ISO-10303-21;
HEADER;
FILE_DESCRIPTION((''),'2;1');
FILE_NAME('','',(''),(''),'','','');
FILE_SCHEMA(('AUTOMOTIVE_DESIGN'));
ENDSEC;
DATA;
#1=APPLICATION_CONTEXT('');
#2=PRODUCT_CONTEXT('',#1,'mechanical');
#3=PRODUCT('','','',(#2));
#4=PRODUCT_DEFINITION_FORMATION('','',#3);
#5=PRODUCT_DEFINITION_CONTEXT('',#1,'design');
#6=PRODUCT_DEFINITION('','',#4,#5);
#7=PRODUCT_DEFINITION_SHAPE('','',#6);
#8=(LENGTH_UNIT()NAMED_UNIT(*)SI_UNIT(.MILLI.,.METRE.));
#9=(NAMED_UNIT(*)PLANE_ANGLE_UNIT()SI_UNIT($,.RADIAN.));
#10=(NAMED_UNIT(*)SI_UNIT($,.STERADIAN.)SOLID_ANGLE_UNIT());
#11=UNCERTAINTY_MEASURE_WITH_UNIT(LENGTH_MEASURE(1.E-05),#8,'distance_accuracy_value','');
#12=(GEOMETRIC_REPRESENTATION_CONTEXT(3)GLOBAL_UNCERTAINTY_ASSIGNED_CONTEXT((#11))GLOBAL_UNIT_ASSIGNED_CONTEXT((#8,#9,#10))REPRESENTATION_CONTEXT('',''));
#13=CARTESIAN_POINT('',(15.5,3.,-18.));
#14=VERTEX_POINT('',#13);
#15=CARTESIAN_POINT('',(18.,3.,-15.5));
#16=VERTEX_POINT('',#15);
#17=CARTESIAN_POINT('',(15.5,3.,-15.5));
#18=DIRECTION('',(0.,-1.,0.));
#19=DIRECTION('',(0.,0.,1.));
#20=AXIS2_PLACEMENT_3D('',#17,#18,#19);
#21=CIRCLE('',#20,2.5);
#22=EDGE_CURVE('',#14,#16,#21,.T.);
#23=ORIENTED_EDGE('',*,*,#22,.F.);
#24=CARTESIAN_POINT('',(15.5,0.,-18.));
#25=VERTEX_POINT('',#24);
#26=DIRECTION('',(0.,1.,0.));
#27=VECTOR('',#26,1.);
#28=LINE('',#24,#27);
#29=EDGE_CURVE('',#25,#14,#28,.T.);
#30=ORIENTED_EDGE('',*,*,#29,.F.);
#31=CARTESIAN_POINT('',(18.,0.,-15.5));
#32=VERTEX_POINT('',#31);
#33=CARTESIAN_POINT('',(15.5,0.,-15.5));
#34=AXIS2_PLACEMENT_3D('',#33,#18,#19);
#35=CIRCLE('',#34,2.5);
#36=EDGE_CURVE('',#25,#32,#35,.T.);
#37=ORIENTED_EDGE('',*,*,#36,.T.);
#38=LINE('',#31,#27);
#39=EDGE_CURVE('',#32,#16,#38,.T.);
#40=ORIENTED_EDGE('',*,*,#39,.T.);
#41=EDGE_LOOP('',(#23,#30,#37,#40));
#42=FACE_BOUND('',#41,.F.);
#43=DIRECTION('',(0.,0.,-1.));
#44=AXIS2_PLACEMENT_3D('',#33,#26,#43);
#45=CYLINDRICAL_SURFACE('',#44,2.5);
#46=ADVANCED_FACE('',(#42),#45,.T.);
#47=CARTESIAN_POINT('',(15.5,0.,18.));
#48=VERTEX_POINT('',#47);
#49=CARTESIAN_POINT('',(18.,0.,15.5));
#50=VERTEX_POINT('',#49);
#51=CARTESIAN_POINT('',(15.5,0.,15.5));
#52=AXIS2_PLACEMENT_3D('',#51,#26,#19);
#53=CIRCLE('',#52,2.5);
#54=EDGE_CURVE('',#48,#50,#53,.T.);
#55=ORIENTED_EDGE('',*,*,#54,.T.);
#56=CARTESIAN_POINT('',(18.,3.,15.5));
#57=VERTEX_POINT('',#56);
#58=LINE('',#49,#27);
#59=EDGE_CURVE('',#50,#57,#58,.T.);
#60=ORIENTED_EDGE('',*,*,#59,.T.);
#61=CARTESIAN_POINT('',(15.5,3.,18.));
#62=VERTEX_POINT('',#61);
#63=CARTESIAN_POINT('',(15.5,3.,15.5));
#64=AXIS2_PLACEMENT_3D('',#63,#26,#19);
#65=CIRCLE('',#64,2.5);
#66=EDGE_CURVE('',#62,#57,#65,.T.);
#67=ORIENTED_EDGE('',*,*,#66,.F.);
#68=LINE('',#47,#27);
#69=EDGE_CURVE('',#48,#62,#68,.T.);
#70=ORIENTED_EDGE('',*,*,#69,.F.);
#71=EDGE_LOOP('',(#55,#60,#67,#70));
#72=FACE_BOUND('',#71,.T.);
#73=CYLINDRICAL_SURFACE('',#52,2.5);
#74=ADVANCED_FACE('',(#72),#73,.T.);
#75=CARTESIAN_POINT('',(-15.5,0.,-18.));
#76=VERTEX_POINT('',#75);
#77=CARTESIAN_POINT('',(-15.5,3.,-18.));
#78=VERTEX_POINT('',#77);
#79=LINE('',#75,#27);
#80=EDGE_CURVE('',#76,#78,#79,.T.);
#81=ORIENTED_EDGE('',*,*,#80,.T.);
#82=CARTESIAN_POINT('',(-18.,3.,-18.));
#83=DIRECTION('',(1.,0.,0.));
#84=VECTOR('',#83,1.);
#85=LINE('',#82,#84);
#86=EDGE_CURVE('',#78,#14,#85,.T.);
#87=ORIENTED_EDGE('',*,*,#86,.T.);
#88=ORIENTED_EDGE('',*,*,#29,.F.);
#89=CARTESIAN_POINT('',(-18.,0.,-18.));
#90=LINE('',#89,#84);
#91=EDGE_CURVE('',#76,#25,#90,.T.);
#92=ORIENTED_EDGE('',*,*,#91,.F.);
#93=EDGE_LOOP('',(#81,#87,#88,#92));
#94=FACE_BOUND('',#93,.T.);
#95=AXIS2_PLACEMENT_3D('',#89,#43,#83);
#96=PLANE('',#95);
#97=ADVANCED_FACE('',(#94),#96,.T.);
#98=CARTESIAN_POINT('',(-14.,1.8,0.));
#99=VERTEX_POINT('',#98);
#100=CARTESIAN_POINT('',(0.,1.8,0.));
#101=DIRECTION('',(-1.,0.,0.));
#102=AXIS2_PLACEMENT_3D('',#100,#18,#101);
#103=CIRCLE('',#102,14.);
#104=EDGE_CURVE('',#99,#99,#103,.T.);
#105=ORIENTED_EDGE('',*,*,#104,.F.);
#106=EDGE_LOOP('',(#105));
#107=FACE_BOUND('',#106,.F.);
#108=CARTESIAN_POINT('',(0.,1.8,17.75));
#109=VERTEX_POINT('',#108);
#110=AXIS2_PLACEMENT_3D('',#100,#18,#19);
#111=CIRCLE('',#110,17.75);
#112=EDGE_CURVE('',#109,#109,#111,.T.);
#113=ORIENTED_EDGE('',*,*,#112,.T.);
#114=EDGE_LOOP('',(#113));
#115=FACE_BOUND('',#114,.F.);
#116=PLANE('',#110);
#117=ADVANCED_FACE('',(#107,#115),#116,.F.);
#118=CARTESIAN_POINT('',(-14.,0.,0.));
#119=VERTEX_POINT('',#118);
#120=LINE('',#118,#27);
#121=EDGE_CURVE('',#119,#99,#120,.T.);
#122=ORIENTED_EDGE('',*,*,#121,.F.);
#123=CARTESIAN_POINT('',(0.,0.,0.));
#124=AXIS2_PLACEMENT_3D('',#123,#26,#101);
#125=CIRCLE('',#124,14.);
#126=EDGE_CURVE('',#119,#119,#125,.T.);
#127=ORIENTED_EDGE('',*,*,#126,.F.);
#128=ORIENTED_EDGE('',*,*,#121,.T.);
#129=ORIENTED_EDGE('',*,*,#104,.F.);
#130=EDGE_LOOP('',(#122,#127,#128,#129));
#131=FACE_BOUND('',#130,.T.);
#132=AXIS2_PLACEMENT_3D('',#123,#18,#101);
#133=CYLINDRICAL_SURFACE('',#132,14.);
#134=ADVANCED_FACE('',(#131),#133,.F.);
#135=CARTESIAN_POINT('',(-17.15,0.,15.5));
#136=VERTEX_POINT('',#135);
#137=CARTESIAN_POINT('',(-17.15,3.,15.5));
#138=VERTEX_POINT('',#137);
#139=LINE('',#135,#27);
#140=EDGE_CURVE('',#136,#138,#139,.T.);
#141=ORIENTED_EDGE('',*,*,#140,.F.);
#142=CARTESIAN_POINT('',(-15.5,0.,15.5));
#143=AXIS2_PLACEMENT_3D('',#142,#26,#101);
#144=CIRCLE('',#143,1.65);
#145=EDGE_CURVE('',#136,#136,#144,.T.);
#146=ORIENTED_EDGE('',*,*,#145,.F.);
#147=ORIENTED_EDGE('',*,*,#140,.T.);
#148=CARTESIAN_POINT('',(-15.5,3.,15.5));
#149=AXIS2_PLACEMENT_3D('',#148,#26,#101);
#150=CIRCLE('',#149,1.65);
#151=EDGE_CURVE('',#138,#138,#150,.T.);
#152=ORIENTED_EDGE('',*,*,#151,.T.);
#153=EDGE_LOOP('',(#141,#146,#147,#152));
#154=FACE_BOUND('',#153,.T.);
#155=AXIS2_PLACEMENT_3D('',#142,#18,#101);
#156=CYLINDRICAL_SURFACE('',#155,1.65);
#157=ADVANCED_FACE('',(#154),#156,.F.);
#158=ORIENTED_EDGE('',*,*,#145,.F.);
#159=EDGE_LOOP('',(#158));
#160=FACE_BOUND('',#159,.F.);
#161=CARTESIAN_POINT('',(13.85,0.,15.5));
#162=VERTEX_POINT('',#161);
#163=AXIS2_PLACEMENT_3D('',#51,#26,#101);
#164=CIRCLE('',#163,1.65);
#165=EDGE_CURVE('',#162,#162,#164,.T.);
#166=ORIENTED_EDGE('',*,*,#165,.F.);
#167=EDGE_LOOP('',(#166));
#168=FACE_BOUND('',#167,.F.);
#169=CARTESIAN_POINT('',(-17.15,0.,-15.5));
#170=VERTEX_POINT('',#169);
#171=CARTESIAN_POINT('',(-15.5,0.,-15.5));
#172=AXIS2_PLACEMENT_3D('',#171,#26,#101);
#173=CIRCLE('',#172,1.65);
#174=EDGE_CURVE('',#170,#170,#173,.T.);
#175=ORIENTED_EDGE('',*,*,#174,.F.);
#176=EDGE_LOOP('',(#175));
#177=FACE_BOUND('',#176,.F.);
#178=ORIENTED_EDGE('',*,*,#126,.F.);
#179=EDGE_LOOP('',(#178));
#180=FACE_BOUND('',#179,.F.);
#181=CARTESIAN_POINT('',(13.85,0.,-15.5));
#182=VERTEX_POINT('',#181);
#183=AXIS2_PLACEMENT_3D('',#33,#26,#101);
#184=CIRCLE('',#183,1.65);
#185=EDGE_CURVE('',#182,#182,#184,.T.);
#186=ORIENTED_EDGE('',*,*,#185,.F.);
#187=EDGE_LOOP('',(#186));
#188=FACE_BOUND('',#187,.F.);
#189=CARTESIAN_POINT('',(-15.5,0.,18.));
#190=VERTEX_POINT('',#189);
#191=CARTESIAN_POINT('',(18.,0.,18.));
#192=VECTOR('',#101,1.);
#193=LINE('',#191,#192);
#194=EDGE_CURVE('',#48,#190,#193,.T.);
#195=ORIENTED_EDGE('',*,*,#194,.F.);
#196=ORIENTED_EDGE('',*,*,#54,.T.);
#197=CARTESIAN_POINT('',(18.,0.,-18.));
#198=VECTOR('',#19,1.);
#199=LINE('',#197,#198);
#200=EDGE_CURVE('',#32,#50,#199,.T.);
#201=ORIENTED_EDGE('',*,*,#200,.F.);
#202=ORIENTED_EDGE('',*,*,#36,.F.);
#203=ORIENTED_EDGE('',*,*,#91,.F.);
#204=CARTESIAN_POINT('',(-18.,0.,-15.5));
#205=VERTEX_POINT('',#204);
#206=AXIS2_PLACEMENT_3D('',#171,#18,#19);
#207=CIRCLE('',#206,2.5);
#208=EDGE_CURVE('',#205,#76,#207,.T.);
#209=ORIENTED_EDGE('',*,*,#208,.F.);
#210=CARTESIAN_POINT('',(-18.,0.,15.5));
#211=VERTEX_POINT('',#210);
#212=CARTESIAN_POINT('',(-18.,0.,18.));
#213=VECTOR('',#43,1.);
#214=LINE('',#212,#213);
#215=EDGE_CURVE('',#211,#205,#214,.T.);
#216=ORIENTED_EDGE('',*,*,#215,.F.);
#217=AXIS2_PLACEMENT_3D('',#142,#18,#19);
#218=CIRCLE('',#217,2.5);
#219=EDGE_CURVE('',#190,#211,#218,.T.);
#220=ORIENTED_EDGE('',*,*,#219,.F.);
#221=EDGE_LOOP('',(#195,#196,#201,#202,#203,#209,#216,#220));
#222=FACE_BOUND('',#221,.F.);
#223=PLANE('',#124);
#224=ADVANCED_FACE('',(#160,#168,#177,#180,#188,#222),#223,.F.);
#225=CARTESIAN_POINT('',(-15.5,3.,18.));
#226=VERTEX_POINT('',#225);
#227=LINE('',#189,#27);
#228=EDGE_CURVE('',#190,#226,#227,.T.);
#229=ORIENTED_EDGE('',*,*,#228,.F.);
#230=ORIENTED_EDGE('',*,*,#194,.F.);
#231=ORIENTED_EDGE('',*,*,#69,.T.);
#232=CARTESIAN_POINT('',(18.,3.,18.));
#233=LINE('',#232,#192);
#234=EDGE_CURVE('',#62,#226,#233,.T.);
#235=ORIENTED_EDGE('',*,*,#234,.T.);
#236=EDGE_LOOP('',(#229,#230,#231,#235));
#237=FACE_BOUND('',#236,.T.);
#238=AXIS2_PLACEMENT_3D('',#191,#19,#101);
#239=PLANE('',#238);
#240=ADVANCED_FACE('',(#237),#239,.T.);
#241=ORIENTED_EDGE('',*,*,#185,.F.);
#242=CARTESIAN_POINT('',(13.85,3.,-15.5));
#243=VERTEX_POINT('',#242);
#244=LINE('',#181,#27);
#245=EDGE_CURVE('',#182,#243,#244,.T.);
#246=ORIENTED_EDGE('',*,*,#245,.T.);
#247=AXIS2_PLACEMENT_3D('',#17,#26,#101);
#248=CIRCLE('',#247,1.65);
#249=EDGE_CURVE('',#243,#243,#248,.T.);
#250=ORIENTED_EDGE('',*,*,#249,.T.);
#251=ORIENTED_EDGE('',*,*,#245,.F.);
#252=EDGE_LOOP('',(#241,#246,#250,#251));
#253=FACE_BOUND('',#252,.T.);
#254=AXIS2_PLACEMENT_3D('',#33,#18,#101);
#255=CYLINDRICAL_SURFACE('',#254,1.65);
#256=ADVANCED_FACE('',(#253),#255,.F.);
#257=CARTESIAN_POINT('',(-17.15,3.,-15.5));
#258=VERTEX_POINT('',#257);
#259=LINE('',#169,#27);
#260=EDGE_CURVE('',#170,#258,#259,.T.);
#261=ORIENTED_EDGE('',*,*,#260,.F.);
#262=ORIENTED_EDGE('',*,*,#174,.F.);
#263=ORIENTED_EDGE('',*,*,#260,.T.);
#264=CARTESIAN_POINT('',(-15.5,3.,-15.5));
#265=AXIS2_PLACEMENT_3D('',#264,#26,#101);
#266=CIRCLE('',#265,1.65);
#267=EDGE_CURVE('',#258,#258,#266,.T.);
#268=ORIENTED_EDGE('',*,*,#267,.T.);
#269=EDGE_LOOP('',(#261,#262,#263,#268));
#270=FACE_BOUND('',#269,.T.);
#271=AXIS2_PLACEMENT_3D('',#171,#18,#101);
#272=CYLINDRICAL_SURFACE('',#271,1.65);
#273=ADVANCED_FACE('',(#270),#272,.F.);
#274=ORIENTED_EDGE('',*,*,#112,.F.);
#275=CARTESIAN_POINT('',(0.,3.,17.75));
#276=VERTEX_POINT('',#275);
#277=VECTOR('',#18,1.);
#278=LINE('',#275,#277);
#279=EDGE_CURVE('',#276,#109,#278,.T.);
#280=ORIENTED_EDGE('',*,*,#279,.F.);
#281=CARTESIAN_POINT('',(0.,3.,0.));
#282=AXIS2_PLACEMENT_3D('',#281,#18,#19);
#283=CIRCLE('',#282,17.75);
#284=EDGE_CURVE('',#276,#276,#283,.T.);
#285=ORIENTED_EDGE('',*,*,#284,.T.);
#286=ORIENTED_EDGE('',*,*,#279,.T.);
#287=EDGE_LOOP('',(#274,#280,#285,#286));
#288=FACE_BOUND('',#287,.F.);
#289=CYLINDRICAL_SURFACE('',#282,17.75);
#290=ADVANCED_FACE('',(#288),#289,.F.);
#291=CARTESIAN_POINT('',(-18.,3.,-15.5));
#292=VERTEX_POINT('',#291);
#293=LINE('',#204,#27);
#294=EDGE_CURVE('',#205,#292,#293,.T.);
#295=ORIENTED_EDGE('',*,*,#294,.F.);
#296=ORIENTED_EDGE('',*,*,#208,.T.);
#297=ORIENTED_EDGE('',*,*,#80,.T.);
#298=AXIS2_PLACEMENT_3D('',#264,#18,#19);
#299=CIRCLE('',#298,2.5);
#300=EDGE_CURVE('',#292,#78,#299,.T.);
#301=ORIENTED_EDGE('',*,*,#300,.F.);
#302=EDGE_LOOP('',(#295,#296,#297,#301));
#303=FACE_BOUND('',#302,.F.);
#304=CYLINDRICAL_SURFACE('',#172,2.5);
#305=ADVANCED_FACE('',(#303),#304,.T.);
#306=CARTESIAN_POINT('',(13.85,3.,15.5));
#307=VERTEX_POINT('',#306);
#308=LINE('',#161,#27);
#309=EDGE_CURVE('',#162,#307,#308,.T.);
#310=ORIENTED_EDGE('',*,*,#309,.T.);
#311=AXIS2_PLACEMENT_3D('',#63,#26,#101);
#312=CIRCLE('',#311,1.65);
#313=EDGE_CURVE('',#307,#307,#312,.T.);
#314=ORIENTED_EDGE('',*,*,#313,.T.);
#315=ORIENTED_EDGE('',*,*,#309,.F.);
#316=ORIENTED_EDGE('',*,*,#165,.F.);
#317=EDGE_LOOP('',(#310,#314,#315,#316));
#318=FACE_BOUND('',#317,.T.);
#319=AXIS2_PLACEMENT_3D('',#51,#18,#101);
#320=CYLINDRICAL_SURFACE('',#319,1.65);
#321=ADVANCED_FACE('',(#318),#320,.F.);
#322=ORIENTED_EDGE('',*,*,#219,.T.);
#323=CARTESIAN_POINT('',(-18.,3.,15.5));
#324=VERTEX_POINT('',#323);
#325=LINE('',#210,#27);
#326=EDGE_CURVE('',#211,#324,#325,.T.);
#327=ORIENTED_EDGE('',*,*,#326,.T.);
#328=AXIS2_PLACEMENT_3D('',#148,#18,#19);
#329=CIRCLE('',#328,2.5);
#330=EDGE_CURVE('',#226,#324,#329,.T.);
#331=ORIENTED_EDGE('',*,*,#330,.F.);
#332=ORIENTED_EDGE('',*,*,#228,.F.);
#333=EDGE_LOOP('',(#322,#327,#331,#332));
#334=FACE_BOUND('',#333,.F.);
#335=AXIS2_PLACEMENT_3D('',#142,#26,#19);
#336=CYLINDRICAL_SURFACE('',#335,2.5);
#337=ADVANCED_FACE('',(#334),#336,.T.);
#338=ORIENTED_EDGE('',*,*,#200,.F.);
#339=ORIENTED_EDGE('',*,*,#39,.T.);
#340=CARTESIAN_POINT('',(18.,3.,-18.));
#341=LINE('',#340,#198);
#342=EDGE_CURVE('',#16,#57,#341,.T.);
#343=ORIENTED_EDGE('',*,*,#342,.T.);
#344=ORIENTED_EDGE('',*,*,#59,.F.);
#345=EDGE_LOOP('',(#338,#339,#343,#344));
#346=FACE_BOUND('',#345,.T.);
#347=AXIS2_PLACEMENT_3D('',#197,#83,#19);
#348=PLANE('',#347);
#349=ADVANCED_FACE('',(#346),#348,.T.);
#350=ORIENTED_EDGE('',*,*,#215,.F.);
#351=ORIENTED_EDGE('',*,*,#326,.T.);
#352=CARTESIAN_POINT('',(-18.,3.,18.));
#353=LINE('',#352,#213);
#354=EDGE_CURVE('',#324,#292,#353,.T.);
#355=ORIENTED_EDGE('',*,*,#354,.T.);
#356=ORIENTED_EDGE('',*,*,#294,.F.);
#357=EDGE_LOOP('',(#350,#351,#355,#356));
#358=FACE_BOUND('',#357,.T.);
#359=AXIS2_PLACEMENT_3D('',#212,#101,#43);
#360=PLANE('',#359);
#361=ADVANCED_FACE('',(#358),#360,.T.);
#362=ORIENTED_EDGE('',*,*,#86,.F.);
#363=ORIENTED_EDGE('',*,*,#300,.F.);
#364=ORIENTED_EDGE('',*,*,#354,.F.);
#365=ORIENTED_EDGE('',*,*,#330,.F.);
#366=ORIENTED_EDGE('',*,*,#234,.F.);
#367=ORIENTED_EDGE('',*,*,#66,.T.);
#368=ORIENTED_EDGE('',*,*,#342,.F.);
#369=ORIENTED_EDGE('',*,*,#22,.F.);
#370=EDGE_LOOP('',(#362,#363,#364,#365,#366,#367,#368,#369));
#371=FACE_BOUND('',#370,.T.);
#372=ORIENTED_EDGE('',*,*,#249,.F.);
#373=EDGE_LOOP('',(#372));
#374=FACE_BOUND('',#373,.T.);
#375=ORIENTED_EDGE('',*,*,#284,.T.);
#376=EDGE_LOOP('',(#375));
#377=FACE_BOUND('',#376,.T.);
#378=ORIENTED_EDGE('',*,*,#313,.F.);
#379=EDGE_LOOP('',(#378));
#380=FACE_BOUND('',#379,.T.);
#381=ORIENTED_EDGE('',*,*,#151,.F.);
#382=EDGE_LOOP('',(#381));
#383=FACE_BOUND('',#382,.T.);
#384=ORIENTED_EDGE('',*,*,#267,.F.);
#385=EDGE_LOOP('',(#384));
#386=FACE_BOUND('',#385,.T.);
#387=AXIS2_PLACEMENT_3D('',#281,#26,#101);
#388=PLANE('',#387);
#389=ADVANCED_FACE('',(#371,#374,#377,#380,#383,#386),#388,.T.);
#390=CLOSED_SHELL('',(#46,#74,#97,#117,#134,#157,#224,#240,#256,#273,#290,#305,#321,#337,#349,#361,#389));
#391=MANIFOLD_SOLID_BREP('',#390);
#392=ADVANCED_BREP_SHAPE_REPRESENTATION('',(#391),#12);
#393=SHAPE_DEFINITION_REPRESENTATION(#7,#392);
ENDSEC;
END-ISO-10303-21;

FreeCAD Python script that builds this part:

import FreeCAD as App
import Part
import Sketcher
from FreeCAD import Vector


def edges_at(feature, points):
    """Names of the edges that pass closest to the given points."""
    edges = feature.Shape.Edges
    near = lambda p: min(range(len(edges)), key=lambda i: edges[i].distToShape(Part.Vertex(*p))[0])
    return sorted({f"Edge{near(p) + 1}" for p in points})


def add_polygon(sketch, points):
    """Adds a closed chain of lines whose ends are joined by coincident constraints."""
    first, n = sketch.GeometryCount, len(points)
    for a, b in zip(points, points[1:] + points[:1]):
        sketch.addGeometry(Part.LineSegment(App.Vector(*a, 0), App.Vector(*b, 0)), False)
    for i in range(n):
        sketch.addConstraint(Sketcher.Constraint("Coincident", first + i, 2, first + (i + 1) % n, 1))

doc = App.newDocument("Part")
body = doc.addObject("PartDesign::Body", "Body")

# Sketch on XZ plane
sketch1 = body.newObject("Sketcher::SketchObject", "Sketch")
sketch1.AttachmentSupport = (doc.getObject("XZ_Plane"), [""])
sketch1.MapMode = "FlatFace"
add_polygon(sketch1, [(-18, 18), (18, 18), (18, -18), (-18, -18)])  # lines 0-3
sketch1.addGeometry(Part.Circle(Vector(15.5, -15.5, 0), Vector(0, 0, 1), 1.65), False)  # 4
sketch1.addGeometry(Part.Circle(Vector(-15.5, -15.5, 0), Vector(0, 0, 1), 1.65), False)  # 5
sketch1.addGeometry(Part.Circle(Vector(15.5, 15.5, 0), Vector(0, 0, 1), 1.65), False)  # 6
sketch1.addGeometry(Part.Circle(Vector(0, 0, 0), Vector(0, 0, 1), 14), False)  # 7
sketch1.addGeometry(Part.Circle(Vector(-15.5, 15.5, 0), Vector(0, 0, 1), 1.65), False)  # 8
sketch1.addConstraint(Sketcher.Constraint("Horizontal", 0))
sketch1.addConstraint(Sketcher.Constraint("Vertical", 1))
sketch1.addConstraint(Sketcher.Constraint("Horizontal", 2))
sketch1.addConstraint(Sketcher.Constraint("Vertical", 3))
sketch1.addConstraint(Sketcher.Constraint("Coincident", 7, 3, -1, 1))
sketch1.addConstraint(Sketcher.Constraint("Equal", 4, 5))
sketch1.addConstraint(Sketcher.Constraint("Equal", 5, 6))
sketch1.addConstraint(Sketcher.Constraint("Equal", 6, 8))
sketch1.addConstraint(Sketcher.Constraint("Symmetric", 5, 3, 6, 3, -1, 1))
sketch1.addConstraint(Sketcher.Constraint("Symmetric", 4, 3, 8, 3, -1, 1))
sketch1.addConstraint(Sketcher.Constraint("Symmetric", 0, 2, 2, 2, -1, 1))
sketch1.addConstraint(Sketcher.Constraint("Symmetric", 4, 3, 5, 3, -2))
sketch1.addConstraint(Sketcher.Constraint("Equal", 2, 1))
sketch1.addConstraint(Sketcher.Constraint("Diameter", 7, 28.0))
sketch1.addConstraint(Sketcher.Constraint("Diameter", 4, 3.3))
sketch1.addConstraint(Sketcher.Constraint("DistanceX", 0, 1, 0, 2, 36.0))
sketch1.addConstraint(Sketcher.Constraint("DistanceX", 6, 3, 0, 2, 2.5))
sketch1.addConstraint(Sketcher.Constraint("DistanceY", 6, 3, 0, 2, 2.5))
pad1 = body.newObject("PartDesign::Pad", "Pad")
pad1.Profile = sketch1
pad1.Length = 3
pad1.Reversed = True
doc.recompute()

fillet = body.newObject("PartDesign::Fillet", "Fillet")
fillet.Base = (pad1, edges_at(pad1, [
    (-18, 1.5, 18),
    (18, 1.5, 18),
    (18, 1.5, -18),
    (-18, 1.5, -18),
]))
fillet.Radius = 2.5

# Sketch on XZ plane
sketch2 = body.newObject("Sketcher::SketchObject", "Sketch001")
sketch2.AttachmentSupport = (doc.getObject("XZ_Plane"), [""])
sketch2.MapMode = "FlatFace"
sketch2.AttachmentOffset = App.Placement(Vector(0, 0, -3), App.Rotation())
sketch2.addGeometry(Part.Circle(Vector(0, 0, 0), Vector(0, 0, 1), 17.75), False)
sketch2.addConstraint(Sketcher.Constraint("Coincident", 0, 3, -1, 1))
sketch2.addConstraint(Sketcher.Constraint("Diameter", 0, 35.5))
doc.recompute()
hole = body.newObject("PartDesign::Hole", "Hole")
hole.Profile = sketch2
hole.ThreadType = "None"
hole.Diameter = 35.5
hole.DepthType = "Dimension"
hole.Depth = 1.2
hole.DrillPoint = "Flat"
hole.Reversed = True

doc.recompute()
